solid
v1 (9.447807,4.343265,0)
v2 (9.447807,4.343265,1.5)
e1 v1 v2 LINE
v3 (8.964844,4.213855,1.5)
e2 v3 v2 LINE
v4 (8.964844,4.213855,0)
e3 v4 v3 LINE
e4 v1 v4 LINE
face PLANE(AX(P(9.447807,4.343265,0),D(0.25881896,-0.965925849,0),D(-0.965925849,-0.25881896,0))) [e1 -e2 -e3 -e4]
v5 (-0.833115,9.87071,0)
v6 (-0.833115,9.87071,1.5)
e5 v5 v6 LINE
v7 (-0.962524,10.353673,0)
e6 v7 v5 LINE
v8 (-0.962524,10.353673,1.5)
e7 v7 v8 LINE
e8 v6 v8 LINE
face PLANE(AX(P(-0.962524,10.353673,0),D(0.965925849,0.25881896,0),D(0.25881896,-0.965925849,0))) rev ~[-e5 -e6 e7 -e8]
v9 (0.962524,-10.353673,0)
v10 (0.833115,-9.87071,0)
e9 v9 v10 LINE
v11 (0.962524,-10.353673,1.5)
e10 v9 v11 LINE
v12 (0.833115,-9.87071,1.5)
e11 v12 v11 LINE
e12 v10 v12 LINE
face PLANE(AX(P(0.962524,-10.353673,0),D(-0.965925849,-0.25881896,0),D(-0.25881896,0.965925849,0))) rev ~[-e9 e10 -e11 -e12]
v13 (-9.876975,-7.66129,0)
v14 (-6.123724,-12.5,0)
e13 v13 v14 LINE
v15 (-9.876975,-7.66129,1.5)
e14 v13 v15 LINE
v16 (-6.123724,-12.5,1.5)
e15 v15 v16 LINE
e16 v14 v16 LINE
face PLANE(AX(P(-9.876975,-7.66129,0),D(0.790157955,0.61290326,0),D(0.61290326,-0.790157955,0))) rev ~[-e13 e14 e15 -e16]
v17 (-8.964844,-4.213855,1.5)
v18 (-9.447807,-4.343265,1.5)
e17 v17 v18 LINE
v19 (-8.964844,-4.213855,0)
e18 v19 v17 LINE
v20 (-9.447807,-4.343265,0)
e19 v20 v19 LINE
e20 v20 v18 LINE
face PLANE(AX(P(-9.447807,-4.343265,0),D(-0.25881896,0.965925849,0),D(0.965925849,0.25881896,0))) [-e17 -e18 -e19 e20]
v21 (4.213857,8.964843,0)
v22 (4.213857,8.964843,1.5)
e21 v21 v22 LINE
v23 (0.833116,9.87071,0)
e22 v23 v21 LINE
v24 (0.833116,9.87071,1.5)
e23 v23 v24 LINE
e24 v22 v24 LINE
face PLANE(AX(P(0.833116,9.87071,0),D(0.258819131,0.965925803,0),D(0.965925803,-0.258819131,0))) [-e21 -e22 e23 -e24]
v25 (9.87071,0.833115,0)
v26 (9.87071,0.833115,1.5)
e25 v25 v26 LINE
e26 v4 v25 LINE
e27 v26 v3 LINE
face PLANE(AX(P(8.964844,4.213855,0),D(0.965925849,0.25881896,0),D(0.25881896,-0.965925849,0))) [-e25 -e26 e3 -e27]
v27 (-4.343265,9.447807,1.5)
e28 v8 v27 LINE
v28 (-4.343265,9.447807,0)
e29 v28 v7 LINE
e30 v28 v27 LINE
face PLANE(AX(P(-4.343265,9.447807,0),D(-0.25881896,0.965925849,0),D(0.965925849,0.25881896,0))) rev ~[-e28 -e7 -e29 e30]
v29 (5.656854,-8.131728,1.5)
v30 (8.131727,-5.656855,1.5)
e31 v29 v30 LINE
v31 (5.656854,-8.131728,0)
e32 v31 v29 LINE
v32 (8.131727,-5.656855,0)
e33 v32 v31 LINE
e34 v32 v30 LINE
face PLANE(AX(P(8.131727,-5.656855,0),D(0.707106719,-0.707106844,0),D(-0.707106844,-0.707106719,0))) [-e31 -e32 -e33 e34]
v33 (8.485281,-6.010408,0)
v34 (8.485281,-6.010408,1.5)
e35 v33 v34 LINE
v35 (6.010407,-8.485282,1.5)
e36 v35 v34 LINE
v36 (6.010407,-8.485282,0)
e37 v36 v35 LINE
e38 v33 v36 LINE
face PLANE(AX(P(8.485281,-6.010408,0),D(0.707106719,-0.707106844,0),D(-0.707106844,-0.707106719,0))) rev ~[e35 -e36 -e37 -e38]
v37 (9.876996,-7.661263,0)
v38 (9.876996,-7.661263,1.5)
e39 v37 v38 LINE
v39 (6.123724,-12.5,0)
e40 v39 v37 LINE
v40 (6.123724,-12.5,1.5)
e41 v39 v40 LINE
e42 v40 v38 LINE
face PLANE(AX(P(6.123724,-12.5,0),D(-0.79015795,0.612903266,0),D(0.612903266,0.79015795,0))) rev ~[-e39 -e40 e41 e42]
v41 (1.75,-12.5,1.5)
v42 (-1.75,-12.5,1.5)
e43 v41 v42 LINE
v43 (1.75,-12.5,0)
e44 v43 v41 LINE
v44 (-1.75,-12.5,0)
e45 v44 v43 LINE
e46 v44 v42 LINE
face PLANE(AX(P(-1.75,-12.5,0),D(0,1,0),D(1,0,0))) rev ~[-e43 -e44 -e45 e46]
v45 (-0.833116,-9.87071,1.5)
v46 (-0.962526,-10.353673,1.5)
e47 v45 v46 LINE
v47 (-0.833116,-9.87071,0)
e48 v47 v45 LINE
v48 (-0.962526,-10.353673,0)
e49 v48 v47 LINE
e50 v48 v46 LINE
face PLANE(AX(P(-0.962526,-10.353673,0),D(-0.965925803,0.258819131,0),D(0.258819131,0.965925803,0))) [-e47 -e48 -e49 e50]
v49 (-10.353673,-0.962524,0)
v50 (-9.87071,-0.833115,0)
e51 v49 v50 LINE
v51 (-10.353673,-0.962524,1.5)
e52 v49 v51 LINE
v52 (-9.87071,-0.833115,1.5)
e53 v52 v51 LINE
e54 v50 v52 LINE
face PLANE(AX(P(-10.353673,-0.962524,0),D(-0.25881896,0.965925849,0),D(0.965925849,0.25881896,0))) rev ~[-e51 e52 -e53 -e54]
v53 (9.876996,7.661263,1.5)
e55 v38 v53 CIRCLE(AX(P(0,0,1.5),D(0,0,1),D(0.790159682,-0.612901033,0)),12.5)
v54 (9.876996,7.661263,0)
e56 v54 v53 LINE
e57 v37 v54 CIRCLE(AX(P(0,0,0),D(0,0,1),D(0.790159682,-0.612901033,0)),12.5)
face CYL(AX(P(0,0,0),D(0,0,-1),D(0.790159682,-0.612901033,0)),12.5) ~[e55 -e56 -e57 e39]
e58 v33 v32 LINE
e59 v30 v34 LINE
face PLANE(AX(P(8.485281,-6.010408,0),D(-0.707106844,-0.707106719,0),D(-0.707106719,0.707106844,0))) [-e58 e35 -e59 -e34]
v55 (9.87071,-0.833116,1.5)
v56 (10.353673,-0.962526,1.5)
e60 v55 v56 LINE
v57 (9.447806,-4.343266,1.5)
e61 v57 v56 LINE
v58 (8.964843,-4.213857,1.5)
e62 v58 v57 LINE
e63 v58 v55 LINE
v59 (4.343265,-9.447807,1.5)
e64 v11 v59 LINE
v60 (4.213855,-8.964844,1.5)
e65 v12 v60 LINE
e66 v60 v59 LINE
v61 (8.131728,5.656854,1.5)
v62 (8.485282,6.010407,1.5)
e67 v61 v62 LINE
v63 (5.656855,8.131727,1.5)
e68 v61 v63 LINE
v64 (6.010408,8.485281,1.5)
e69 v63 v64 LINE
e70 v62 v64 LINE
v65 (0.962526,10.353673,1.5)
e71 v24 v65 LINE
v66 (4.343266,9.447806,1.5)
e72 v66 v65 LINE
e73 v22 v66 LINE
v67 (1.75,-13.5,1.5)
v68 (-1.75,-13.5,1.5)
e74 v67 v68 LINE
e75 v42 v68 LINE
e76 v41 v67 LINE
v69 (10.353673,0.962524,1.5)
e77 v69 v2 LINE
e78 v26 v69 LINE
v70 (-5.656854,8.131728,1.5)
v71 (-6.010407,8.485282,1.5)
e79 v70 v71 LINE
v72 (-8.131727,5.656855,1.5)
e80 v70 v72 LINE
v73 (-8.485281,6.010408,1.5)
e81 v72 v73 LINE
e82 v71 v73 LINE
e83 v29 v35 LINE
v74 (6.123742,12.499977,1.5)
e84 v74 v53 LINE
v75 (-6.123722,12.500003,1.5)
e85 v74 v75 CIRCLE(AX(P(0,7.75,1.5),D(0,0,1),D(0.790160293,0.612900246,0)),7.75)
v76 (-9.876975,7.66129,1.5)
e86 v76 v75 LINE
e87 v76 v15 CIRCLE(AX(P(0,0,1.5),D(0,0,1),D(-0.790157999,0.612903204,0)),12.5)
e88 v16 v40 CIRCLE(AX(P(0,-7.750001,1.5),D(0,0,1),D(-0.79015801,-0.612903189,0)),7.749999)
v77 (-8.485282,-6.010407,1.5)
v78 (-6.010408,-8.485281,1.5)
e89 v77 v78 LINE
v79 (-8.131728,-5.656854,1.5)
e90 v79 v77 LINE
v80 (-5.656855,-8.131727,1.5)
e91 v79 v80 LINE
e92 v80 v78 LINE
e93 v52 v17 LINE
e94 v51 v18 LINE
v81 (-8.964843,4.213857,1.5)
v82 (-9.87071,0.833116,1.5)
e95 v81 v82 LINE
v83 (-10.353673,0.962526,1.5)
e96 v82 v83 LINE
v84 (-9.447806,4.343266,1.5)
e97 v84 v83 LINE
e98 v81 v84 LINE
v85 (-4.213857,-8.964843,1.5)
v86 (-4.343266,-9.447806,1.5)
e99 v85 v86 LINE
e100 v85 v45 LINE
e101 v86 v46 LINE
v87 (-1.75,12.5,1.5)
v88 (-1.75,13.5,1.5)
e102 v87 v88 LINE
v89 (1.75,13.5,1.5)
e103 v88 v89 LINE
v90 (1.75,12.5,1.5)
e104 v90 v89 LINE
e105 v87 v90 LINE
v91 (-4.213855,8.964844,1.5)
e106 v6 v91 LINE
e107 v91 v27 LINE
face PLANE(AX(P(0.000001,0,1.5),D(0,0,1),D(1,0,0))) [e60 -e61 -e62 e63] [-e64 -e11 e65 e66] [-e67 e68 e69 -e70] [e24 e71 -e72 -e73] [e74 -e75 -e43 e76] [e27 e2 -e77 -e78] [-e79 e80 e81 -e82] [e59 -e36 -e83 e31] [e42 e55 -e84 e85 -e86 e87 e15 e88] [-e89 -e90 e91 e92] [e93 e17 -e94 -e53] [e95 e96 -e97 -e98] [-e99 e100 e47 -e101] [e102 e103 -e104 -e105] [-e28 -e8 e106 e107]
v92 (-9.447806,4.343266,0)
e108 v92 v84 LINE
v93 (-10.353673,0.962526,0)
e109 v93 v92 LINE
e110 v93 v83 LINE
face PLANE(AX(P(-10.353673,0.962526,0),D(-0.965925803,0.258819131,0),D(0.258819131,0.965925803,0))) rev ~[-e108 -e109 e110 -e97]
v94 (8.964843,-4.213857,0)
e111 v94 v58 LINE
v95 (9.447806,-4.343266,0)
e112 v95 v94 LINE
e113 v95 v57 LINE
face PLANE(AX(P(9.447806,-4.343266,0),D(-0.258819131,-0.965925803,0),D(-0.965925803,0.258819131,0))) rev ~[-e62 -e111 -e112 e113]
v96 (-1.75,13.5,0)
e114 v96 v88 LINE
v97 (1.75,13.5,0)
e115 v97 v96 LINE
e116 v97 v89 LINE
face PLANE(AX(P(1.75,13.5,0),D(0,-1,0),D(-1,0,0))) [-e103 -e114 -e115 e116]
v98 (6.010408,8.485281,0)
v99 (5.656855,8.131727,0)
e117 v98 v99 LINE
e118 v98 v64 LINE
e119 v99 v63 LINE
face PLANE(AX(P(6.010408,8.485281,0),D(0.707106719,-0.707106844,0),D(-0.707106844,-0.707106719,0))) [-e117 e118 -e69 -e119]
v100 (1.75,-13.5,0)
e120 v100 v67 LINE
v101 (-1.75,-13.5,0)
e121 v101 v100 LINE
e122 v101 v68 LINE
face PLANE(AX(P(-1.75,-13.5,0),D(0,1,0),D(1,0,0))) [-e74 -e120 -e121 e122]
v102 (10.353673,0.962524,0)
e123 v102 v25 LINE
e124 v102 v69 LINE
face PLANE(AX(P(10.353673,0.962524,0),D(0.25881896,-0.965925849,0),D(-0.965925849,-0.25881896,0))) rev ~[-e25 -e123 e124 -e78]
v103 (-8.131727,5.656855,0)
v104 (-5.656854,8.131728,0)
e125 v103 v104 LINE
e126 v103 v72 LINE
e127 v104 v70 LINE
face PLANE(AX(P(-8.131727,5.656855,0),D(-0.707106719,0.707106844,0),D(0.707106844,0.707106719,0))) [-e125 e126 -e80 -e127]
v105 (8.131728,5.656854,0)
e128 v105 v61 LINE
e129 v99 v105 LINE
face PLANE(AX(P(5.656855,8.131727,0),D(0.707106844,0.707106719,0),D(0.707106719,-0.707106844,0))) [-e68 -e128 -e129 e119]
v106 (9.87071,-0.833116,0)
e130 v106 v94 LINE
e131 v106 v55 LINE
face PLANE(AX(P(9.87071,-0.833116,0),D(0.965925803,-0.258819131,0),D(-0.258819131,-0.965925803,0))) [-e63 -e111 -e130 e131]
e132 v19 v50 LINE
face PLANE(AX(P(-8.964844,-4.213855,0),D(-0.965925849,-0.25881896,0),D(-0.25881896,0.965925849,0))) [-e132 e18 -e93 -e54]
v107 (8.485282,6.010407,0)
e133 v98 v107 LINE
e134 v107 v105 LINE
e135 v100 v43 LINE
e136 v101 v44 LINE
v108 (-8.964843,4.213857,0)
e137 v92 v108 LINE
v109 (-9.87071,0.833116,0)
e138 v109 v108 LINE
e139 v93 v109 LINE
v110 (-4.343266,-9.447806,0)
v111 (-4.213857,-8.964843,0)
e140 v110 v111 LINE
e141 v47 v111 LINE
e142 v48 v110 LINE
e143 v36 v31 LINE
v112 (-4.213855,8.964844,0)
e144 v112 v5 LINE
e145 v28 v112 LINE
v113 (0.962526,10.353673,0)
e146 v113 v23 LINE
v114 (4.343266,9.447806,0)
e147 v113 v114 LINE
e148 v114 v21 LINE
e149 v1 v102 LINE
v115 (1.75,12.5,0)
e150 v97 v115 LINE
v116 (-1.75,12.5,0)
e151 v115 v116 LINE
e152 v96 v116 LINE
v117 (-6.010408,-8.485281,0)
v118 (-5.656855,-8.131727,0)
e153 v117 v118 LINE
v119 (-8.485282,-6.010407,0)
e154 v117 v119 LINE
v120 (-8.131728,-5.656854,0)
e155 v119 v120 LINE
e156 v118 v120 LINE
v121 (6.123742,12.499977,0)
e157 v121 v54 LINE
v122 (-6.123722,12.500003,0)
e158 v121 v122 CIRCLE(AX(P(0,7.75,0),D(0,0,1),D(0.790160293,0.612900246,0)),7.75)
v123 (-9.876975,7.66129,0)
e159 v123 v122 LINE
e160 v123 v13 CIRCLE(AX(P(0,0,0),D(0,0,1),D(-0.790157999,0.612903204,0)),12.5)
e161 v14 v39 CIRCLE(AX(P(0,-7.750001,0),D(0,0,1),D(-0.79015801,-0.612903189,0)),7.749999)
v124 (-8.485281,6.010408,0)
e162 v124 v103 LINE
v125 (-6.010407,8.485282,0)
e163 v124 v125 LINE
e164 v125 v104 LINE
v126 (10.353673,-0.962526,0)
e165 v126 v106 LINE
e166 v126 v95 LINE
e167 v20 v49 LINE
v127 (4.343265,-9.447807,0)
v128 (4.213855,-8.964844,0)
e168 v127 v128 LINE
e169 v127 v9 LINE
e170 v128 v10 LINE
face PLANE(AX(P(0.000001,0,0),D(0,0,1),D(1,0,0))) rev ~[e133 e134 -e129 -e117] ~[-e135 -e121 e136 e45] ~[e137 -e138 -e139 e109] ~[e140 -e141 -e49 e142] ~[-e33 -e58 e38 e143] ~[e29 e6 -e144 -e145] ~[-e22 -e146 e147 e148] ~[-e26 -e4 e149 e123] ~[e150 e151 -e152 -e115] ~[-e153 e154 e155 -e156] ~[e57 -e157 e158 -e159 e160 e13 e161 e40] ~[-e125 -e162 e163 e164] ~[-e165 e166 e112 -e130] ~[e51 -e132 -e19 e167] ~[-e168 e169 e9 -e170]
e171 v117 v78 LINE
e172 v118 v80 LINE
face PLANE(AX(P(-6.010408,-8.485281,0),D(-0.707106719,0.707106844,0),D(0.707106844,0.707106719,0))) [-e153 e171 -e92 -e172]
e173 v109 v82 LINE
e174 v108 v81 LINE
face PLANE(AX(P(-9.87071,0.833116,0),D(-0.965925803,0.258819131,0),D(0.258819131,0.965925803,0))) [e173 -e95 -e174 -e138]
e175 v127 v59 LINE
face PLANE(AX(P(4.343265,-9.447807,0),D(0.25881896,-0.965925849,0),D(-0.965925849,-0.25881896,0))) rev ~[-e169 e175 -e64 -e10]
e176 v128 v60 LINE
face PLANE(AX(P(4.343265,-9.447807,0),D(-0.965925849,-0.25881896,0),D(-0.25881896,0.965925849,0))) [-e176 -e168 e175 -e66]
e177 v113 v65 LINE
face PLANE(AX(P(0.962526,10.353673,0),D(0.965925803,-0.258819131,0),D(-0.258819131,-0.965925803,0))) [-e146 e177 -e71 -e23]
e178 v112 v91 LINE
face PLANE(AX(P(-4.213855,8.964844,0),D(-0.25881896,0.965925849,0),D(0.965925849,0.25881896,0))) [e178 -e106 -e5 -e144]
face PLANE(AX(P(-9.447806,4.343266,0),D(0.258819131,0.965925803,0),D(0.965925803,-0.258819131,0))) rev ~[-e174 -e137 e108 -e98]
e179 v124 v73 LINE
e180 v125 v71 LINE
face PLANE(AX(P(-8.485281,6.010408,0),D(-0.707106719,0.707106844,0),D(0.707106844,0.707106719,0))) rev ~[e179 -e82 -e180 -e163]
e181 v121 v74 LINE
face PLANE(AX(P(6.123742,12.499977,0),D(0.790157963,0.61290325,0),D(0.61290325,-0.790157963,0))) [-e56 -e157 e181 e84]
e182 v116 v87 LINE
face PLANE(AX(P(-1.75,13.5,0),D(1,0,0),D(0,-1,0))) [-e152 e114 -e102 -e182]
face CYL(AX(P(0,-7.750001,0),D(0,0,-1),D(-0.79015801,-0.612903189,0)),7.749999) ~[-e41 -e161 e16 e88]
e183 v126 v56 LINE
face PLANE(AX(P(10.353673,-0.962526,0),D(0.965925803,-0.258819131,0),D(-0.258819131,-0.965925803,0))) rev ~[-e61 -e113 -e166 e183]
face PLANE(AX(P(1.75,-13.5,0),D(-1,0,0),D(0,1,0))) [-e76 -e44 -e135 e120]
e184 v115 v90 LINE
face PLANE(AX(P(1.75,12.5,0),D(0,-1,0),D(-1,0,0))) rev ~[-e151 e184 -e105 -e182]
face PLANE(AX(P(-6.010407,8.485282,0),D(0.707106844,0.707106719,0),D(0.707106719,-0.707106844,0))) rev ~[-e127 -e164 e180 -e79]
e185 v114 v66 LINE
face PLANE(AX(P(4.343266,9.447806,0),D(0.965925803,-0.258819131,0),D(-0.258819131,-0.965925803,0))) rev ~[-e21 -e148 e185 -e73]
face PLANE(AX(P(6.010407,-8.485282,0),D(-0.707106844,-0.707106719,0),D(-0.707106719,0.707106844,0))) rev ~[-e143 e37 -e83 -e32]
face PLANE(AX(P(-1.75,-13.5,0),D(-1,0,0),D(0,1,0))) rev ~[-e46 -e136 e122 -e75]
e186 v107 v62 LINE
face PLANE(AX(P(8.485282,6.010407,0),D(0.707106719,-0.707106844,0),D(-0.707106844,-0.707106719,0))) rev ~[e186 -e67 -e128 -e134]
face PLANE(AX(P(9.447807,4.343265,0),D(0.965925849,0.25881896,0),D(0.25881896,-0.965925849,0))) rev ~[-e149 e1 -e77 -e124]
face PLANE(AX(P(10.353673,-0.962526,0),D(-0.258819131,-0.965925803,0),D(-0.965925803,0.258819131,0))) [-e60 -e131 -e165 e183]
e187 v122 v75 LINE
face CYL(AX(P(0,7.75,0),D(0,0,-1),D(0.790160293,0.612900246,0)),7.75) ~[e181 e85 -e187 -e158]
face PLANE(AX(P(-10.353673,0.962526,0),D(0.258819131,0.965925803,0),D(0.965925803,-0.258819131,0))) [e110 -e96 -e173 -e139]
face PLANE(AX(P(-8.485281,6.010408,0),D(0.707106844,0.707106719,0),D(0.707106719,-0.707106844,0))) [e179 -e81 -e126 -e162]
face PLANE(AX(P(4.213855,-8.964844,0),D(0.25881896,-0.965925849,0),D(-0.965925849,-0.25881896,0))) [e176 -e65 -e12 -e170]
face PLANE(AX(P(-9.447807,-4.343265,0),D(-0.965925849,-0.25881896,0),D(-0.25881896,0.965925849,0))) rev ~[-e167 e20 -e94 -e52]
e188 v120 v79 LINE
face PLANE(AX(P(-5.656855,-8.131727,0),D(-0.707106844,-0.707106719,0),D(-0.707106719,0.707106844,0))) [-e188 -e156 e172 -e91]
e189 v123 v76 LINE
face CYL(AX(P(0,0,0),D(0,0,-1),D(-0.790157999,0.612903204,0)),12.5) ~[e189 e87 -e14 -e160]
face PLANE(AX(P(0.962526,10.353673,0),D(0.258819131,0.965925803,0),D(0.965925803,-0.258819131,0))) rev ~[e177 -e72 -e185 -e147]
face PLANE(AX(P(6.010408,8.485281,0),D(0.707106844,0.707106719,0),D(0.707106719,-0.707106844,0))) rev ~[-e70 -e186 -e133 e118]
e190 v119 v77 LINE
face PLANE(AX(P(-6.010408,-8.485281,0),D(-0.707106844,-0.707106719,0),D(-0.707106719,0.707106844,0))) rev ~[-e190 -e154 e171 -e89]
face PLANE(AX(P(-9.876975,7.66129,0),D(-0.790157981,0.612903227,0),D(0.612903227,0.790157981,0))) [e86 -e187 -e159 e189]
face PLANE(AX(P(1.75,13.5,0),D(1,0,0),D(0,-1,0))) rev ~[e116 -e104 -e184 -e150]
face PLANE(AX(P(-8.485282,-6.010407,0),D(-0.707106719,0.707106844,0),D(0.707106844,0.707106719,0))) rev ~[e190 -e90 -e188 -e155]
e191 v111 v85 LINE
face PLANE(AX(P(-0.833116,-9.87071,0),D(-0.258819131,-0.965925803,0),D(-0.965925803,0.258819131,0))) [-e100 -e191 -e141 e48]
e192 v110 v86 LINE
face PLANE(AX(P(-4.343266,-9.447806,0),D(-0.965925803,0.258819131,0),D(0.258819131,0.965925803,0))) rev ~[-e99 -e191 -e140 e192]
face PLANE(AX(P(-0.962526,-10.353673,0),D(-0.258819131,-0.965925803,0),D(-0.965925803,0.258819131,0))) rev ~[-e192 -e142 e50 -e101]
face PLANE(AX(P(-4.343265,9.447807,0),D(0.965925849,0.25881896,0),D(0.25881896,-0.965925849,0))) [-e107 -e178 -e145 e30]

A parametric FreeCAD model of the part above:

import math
import FreeCAD as App
import Part
import Sketcher

V = App.Vector
Q = App.Units.Quantity


def add_polygon(sketch, points):
    """Adds a closed chain of lines whose ends are joined by coincident constraints."""
    first, n = sketch.GeometryCount, len(points)
    for a, b in zip(points, points[1:] + points[:1]):
        sketch.addGeometry(Part.LineSegment(App.Vector(*a, 0), App.Vector(*b, 0)), False)
    for i in range(n):
        sketch.addConstraint(Sketcher.Constraint("Coincident", first + i, 2, first + (i + 1) % n, 1))

doc = App.newDocument("Part")
params = doc.addObject("Spreadsheet::Sheet", "Params")
for row, (alias, value) in enumerate([
    ("sketch1_radius", "12.5 mm"),
    ("sketch1_radius2", "7.749999 mm"),
    ("pad1_length", "1.5 mm"),
    ("sketch2_height", "1 mm"),
    ("sketch2_width", "3.5 mm"),
    ("sketch3_length", "3.5 mm"),
    ("sketch3_length2", "0.5 mm"),
], start=1):
    params.set(f"A{row}", alias)
    params.set(f"B{row}", "=" + value)
    params.setAlias(f"B{row}", alias)

body = doc.addObject("PartDesign::Body", "Body")

# Sketch on XY plane
sketch1 = body.newObject("Sketcher::SketchObject", "Sketch")
sketch1.AttachmentSupport = (doc.getObject("XY_Plane"), [""])
sketch1.MapMode = "FlatFace"
sketch1.addGeometry([
    Part.ArcOfCircle(Part.Circle(V(0, 0, 0), V(0, 0, 1), 12.5), math.radians(142.200279), math.radians(217.799721)),  # 0
    Part.LineSegment(V(-9.876975, -7.66129, 0), V(-6.123724, -12.5, 0)),  # 1
    Part.ArcOfCircle(Part.Circle(V(0, -7.750001, 0), V(0, 0, 1), 7.749999), math.radians(-142.20028), math.radians(-37.79972)),  # 2
    Part.LineSegment(V(6.123724, -12.5, 0), V(9.876996, -7.661263, 0)),  # 3
    Part.ArcOfCircle(Part.Circle(V(0, 0, 0), V(0, 0, 1), 12.5), math.radians(-37.799563), math.radians(37.799563)),  # 4
    Part.LineSegment(V(9.876996, 7.661263, 0), V(6.123742, 12.499977, 0)),  # 5
    Part.ArcOfCircle(Part.Circle(V(0, 7.75, 0), V(0, 0, 1), 7.75), math.radians(37.799506), math.radians(142.20025)),  # 6
    Part.LineSegment(V(-6.123722, 12.500003, 0), V(-9.876975, 7.66129, 0)),  # 7
], False)
sketch1.addConstraint([
    Sketcher.Constraint("Tangent", 0, 2, 1, 1),
    Sketcher.Constraint("Tangent", 1, 2, 2, 1),
    Sketcher.Constraint("Tangent", 2, 2, 3, 1),
    Sketcher.Constraint("Coincident", 3, 2, 4, 1),
    Sketcher.Constraint("Coincident", 4, 2, 5, 1),
    Sketcher.Constraint("Coincident", 5, 2, 6, 1),
    Sketcher.Constraint("Tangent", 6, 2, 7, 1),
    Sketcher.Constraint("Tangent", 7, 2, 0, 1),
    Sketcher.Constraint("Coincident", 0, 3, -1, 1),
    Sketcher.Constraint("Coincident", 4, 3, -1, 1),
    Sketcher.Constraint("Equal", 0, 4),
    Sketcher.Constraint("Equal", 2, 6),
    Sketcher.Constraint("Symmetric", 2, 3, 6, 3, -1, 1),
    Sketcher.Constraint("PointOnObject", 2, 3, -2),
    Sketcher.Constraint("Vertical", 3, 2, 4, 2),
    Sketcher.Constraint("Equal", 5, 7),
    Sketcher.Constraint("Radius", 0, 12.5),
    Sketcher.Constraint("Radius", 2, 7.749999),
    Sketcher.Constraint("DistanceY", 1, 2, -1, 1, 12.5),
    Sketcher.Constraint("Distance", 3, 6.123759),
])
sketch1.setExpression("Constraints[16]", "Params.sketch1_radius")
sketch1.setExpression("Constraints[17]", "Params.sketch1_radius2")
pad1 = body.newObject("PartDesign::Pad", "Pad")
pad1.Profile = sketch1
pad1.setExpression("Length", "Params.pad1_length")

# Sketch on XY plane
sketch2 = body.newObject("Sketcher::SketchObject", "Sketch001")
sketch2.AttachmentSupport = (doc.getObject("XY_Plane"), [""])
sketch2.MapMode = "FlatFace"
add_polygon(sketch2, [(-1.75, -12.5), (-1.75, -13.5), (1.75, -13.5), (1.75, -12.5)])  # lines 0-3
sketch2.addConstraint([
    Sketcher.Constraint("Vertical", 0),
    Sketcher.Constraint("Horizontal", 1),
    Sketcher.Constraint("Vertical", 2),
    Sketcher.Constraint("Horizontal", 3),
    Sketcher.Constraint("DistanceY", 0, 2, 0, 1, 1.0),
    Sketcher.Constraint("DistanceX", 1, 1, 1, 2, 3.5),
    Sketcher.Constraint("DistanceY", 0, 2, -1, 1, 13.5),
    Sketcher.Constraint("DistanceX", 0, 2, -1, 1, 1.75),
])
sketch2.setExpression("Constraints[8]", "Params.sketch2_height")
sketch2.setExpression("Constraints[9]", "Params.sketch2_width")
pocket1 = body.newObject("PartDesign::Pocket", "Pocket")
pocket1.Profile = sketch2
pocket1.Type = "ThroughAll"
pocket1.Reversed = True
doc.recompute()

polarpattern = body.newObject("PartDesign::PolarPattern", "PolarPattern")
polarpattern.Originals = [pocket1]
polarpattern.Axis = (doc.getObject("Z_Axis"), [""])
polarpattern.Angle = 360
polarpattern.Occurrences = 2
body.Tip = polarpattern

# Sketch on XY plane
sketch3 = body.newObject("Sketcher::SketchObject", "Sketch002")
sketch3.AttachmentSupport = (doc.getObject("XY_Plane"), [""])
sketch3.MapMode = "FlatFace"
add_polygon(sketch3, [(-10.353673, -0.962524), (-9.447807, -4.343265), (-8.964844, -4.213855), (-9.87071, -0.833115)])  # lines 0-3
sketch3.addConstraint([
    Sketcher.Constraint("Perpendicular", 0, 1),
    Sketcher.Constraint("Perpendicular", 1, 2),
    Sketcher.Constraint("Perpendicular", 2, 3),
    Sketcher.Constraint("Angle", 0, Q("-75.000005 deg")),
    Sketcher.Constraint("Distance", 0, 3.5),
    Sketcher.Constraint("Distance", 1, 0.5),
    Sketcher.Constraint("DistanceX", 2, 2, -1, 1, 9.87071),
    Sketcher.Constraint("DistanceY", 0, 2, -1, 1, 4.343265),
])
sketch3.setExpression("Constraints[8]", "Params.sketch3_length")
sketch3.setExpression("Constraints[9]", "Params.sketch3_length2")
pocket2 = body.newObject("PartDesign::Pocket", "Pocket001")
pocket2.Profile = sketch3
pocket2.Type = "ThroughAll"
pocket2.Reversed = True
doc.recompute()

polarpattern2 = body.newObject("PartDesign::PolarPattern", "PolarPattern001")
polarpattern2.Originals = [pocket2]
polarpattern2.Axis = (doc.getObject("Z_Axis"), [""])
polarpattern2.Angle = 360
polarpattern2.Occurrences = 12
body.Tip = polarpattern2

doc.recompute()
